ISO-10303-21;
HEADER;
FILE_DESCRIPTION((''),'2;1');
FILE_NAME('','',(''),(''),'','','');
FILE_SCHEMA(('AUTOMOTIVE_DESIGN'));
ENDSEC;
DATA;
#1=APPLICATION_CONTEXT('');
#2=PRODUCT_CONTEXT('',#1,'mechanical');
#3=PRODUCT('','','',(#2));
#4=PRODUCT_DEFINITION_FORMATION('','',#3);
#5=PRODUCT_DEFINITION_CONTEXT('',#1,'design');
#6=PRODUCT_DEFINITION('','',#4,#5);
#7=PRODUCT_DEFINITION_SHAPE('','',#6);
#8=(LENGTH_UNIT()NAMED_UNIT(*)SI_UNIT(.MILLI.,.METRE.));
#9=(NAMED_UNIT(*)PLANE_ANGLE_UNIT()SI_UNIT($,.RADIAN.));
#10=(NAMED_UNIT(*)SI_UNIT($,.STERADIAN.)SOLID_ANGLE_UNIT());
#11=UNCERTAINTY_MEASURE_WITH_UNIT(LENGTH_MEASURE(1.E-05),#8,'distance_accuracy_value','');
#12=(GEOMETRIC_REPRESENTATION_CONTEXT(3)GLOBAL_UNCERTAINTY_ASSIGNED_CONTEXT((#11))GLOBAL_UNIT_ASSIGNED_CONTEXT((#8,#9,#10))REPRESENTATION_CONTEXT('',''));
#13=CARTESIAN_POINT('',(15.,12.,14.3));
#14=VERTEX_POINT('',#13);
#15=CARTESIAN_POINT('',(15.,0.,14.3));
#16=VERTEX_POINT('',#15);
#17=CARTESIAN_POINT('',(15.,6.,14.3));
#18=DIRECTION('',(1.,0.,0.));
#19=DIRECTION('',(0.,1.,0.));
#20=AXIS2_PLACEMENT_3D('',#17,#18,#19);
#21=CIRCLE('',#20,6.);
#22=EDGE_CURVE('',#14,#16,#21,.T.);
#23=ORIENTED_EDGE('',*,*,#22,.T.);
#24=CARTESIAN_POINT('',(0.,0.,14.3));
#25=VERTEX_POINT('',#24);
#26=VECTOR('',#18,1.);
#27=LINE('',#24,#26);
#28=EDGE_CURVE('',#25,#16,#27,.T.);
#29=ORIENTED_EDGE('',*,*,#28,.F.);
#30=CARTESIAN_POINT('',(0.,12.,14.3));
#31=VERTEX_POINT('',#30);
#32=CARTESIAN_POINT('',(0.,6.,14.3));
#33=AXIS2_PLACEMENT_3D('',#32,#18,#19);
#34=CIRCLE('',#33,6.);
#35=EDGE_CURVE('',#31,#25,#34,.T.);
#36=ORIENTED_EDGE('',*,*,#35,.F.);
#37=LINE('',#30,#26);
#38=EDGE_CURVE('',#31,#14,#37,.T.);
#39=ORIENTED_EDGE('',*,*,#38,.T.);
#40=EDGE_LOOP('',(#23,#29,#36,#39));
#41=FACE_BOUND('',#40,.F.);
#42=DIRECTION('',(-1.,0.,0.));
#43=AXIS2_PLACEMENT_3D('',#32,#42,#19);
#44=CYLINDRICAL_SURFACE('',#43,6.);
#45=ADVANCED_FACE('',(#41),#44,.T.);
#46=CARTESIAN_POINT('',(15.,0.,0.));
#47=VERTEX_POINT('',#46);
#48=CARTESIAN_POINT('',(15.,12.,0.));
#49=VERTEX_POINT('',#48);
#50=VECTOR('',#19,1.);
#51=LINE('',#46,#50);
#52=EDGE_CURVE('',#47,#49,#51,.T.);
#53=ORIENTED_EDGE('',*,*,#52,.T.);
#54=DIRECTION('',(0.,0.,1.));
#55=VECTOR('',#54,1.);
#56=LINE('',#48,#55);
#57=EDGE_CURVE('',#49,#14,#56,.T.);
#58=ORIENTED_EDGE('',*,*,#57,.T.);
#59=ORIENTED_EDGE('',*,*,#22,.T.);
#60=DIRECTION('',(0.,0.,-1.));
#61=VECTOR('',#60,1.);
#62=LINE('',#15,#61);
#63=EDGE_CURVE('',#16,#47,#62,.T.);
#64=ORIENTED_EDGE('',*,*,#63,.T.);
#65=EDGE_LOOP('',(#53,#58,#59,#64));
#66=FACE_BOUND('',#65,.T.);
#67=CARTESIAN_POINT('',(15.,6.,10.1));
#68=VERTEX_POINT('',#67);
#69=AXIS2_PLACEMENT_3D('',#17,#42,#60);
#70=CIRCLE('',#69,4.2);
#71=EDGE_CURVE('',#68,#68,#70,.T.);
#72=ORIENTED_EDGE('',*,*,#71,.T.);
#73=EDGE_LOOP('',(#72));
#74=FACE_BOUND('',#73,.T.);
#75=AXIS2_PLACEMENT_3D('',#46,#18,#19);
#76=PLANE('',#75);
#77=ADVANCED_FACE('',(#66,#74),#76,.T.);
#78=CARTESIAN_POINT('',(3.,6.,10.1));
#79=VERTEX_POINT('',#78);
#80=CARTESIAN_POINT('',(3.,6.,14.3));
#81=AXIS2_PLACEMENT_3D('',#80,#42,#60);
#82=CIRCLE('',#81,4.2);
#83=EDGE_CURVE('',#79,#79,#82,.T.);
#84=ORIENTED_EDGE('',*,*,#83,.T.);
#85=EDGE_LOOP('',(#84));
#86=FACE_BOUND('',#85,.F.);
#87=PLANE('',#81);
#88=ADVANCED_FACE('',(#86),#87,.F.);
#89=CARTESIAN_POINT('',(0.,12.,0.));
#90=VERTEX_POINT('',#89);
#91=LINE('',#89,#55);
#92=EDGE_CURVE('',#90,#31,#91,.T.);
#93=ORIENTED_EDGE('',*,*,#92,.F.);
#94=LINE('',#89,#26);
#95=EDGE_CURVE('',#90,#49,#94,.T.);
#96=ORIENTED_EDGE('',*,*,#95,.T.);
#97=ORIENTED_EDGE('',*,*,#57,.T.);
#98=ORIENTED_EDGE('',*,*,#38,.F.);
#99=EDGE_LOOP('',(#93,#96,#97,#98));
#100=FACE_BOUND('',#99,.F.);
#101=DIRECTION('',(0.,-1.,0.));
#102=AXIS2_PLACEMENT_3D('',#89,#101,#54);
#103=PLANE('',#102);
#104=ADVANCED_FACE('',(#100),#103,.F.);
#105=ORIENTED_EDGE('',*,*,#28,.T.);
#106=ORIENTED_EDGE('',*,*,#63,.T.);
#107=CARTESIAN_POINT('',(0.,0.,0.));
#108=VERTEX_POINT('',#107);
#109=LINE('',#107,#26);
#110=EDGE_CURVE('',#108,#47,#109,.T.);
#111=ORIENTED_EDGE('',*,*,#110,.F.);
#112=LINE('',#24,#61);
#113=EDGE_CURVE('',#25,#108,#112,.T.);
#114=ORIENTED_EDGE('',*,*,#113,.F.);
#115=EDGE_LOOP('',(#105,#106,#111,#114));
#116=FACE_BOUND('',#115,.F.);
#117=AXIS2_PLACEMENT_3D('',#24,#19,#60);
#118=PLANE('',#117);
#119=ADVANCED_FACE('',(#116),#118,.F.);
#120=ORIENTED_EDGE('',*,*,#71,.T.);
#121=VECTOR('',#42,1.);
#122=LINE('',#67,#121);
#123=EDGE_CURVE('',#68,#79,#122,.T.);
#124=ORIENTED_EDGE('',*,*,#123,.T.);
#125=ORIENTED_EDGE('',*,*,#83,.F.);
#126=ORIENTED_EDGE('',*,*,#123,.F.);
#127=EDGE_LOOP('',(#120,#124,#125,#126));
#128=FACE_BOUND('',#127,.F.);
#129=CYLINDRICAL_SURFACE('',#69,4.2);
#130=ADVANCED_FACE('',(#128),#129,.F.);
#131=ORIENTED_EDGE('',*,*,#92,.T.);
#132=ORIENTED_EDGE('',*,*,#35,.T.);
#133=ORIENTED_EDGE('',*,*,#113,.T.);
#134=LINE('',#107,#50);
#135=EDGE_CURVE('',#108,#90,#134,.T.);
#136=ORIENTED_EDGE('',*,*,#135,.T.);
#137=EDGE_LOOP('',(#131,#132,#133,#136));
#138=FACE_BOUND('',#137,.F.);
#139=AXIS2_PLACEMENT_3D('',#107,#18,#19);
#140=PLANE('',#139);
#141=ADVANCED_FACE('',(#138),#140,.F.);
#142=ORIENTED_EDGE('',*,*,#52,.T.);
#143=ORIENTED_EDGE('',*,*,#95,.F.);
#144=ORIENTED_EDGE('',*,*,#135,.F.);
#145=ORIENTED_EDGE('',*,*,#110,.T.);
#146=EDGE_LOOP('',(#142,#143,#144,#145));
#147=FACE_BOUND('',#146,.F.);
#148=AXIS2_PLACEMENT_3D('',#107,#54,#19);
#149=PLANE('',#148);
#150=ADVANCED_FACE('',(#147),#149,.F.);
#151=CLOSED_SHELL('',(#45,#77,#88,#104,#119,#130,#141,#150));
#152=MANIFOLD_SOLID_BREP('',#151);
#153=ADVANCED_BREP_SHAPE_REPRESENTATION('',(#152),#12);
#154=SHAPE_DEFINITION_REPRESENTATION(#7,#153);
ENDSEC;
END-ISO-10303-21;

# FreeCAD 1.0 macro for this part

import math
import FreeCAD as App
import Part
import Sketcher

V = App.Vector

doc = App.newDocument("Part")
body = doc.addObject("PartDesign::Body", "Body")

# Sketch on YZ plane
sketch1 = doc.addObject("Sketcher::SketchObject", "Sketch")
body.addObject(sketch1)
sketch1.AttachmentSupport = (doc.YZ_Plane, [""])
sketch1.MapMode = "FlatFace"
sketch1.addGeometry([
    Part.LineSegment(V(0, 14, 0), V(0, 0, 0)),
    Part.LineSegment(V(0, 0, 0), V(12, 0, 0)),
    Part.LineSegment(V(12, 0, 0), V(12, 14, 0)),
    Part.ArcOfCircle(Part.Circle(V(6, 14, 0), V(0, 0, 1), 6), math.radians(0), math.radians(180)),
], False)
sketch1.addConstraint([
    Sketcher.Constraint("Coincident", 0, 2, 1, 1),
    Sketcher.Constraint("Coincident", 1, 2, 2, 1),
    Sketcher.Constraint("Tangent", 2, 2, 3, 1),
    Sketcher.Constraint("Tangent", 3, 2, 0, 1),
    Sketcher.Constraint("Vertical", 0),
    Sketcher.Constraint("Horizontal", 1),
    Sketcher.Constraint("Vertical", 2),
    Sketcher.Constraint("Coincident", 0, 2, -1, 1),
    Sketcher.Constraint("Radius", 3, 6.0),
    Sketcher.Constraint("DistanceY", 0, 2, 0, 1, 14.3),
])
pad1 = doc.addObject("PartDesign::Pad", "Pad")
body.addObject(pad1)
pad1.Profile = sketch1
pad1.Length = 15

# Sketch on YZ plane
sketch2 = doc.addObject("Sketcher::SketchObject", "Sketch001")
body.addObject(sketch2)
sketch2.AttachmentSupport = (doc.YZ_Plane, [""])
sketch2.MapMode = "FlatFace"
sketch2.AttachmentOffset = App.Placement(V(0, 0, 15), App.Rotation())
sketch2.addGeometry(Part.Circle(V(6, 14.3, 0), V(0, 0, 1), 4.2), False)
sketch2.addConstraint([
    Sketcher.Constraint("Diameter", 0, 8.4),
    Sketcher.Constraint("DistanceX", -1, 1, 0, 3, 6.0),
    Sketcher.Constraint("DistanceY", -1, 1, 0, 3, 14.3),
])
doc.recompute()
hole = doc.addObject("PartDesign::Hole", "Hole")
body.addObject(hole)
hole.Profile = sketch2
hole.ThreadType = "None"
hole.Diameter = 8.4
hole.DepthType = "Dimension"
hole.Depth = 12
hole.DrillPoint = "Flat"

doc.recompute()
